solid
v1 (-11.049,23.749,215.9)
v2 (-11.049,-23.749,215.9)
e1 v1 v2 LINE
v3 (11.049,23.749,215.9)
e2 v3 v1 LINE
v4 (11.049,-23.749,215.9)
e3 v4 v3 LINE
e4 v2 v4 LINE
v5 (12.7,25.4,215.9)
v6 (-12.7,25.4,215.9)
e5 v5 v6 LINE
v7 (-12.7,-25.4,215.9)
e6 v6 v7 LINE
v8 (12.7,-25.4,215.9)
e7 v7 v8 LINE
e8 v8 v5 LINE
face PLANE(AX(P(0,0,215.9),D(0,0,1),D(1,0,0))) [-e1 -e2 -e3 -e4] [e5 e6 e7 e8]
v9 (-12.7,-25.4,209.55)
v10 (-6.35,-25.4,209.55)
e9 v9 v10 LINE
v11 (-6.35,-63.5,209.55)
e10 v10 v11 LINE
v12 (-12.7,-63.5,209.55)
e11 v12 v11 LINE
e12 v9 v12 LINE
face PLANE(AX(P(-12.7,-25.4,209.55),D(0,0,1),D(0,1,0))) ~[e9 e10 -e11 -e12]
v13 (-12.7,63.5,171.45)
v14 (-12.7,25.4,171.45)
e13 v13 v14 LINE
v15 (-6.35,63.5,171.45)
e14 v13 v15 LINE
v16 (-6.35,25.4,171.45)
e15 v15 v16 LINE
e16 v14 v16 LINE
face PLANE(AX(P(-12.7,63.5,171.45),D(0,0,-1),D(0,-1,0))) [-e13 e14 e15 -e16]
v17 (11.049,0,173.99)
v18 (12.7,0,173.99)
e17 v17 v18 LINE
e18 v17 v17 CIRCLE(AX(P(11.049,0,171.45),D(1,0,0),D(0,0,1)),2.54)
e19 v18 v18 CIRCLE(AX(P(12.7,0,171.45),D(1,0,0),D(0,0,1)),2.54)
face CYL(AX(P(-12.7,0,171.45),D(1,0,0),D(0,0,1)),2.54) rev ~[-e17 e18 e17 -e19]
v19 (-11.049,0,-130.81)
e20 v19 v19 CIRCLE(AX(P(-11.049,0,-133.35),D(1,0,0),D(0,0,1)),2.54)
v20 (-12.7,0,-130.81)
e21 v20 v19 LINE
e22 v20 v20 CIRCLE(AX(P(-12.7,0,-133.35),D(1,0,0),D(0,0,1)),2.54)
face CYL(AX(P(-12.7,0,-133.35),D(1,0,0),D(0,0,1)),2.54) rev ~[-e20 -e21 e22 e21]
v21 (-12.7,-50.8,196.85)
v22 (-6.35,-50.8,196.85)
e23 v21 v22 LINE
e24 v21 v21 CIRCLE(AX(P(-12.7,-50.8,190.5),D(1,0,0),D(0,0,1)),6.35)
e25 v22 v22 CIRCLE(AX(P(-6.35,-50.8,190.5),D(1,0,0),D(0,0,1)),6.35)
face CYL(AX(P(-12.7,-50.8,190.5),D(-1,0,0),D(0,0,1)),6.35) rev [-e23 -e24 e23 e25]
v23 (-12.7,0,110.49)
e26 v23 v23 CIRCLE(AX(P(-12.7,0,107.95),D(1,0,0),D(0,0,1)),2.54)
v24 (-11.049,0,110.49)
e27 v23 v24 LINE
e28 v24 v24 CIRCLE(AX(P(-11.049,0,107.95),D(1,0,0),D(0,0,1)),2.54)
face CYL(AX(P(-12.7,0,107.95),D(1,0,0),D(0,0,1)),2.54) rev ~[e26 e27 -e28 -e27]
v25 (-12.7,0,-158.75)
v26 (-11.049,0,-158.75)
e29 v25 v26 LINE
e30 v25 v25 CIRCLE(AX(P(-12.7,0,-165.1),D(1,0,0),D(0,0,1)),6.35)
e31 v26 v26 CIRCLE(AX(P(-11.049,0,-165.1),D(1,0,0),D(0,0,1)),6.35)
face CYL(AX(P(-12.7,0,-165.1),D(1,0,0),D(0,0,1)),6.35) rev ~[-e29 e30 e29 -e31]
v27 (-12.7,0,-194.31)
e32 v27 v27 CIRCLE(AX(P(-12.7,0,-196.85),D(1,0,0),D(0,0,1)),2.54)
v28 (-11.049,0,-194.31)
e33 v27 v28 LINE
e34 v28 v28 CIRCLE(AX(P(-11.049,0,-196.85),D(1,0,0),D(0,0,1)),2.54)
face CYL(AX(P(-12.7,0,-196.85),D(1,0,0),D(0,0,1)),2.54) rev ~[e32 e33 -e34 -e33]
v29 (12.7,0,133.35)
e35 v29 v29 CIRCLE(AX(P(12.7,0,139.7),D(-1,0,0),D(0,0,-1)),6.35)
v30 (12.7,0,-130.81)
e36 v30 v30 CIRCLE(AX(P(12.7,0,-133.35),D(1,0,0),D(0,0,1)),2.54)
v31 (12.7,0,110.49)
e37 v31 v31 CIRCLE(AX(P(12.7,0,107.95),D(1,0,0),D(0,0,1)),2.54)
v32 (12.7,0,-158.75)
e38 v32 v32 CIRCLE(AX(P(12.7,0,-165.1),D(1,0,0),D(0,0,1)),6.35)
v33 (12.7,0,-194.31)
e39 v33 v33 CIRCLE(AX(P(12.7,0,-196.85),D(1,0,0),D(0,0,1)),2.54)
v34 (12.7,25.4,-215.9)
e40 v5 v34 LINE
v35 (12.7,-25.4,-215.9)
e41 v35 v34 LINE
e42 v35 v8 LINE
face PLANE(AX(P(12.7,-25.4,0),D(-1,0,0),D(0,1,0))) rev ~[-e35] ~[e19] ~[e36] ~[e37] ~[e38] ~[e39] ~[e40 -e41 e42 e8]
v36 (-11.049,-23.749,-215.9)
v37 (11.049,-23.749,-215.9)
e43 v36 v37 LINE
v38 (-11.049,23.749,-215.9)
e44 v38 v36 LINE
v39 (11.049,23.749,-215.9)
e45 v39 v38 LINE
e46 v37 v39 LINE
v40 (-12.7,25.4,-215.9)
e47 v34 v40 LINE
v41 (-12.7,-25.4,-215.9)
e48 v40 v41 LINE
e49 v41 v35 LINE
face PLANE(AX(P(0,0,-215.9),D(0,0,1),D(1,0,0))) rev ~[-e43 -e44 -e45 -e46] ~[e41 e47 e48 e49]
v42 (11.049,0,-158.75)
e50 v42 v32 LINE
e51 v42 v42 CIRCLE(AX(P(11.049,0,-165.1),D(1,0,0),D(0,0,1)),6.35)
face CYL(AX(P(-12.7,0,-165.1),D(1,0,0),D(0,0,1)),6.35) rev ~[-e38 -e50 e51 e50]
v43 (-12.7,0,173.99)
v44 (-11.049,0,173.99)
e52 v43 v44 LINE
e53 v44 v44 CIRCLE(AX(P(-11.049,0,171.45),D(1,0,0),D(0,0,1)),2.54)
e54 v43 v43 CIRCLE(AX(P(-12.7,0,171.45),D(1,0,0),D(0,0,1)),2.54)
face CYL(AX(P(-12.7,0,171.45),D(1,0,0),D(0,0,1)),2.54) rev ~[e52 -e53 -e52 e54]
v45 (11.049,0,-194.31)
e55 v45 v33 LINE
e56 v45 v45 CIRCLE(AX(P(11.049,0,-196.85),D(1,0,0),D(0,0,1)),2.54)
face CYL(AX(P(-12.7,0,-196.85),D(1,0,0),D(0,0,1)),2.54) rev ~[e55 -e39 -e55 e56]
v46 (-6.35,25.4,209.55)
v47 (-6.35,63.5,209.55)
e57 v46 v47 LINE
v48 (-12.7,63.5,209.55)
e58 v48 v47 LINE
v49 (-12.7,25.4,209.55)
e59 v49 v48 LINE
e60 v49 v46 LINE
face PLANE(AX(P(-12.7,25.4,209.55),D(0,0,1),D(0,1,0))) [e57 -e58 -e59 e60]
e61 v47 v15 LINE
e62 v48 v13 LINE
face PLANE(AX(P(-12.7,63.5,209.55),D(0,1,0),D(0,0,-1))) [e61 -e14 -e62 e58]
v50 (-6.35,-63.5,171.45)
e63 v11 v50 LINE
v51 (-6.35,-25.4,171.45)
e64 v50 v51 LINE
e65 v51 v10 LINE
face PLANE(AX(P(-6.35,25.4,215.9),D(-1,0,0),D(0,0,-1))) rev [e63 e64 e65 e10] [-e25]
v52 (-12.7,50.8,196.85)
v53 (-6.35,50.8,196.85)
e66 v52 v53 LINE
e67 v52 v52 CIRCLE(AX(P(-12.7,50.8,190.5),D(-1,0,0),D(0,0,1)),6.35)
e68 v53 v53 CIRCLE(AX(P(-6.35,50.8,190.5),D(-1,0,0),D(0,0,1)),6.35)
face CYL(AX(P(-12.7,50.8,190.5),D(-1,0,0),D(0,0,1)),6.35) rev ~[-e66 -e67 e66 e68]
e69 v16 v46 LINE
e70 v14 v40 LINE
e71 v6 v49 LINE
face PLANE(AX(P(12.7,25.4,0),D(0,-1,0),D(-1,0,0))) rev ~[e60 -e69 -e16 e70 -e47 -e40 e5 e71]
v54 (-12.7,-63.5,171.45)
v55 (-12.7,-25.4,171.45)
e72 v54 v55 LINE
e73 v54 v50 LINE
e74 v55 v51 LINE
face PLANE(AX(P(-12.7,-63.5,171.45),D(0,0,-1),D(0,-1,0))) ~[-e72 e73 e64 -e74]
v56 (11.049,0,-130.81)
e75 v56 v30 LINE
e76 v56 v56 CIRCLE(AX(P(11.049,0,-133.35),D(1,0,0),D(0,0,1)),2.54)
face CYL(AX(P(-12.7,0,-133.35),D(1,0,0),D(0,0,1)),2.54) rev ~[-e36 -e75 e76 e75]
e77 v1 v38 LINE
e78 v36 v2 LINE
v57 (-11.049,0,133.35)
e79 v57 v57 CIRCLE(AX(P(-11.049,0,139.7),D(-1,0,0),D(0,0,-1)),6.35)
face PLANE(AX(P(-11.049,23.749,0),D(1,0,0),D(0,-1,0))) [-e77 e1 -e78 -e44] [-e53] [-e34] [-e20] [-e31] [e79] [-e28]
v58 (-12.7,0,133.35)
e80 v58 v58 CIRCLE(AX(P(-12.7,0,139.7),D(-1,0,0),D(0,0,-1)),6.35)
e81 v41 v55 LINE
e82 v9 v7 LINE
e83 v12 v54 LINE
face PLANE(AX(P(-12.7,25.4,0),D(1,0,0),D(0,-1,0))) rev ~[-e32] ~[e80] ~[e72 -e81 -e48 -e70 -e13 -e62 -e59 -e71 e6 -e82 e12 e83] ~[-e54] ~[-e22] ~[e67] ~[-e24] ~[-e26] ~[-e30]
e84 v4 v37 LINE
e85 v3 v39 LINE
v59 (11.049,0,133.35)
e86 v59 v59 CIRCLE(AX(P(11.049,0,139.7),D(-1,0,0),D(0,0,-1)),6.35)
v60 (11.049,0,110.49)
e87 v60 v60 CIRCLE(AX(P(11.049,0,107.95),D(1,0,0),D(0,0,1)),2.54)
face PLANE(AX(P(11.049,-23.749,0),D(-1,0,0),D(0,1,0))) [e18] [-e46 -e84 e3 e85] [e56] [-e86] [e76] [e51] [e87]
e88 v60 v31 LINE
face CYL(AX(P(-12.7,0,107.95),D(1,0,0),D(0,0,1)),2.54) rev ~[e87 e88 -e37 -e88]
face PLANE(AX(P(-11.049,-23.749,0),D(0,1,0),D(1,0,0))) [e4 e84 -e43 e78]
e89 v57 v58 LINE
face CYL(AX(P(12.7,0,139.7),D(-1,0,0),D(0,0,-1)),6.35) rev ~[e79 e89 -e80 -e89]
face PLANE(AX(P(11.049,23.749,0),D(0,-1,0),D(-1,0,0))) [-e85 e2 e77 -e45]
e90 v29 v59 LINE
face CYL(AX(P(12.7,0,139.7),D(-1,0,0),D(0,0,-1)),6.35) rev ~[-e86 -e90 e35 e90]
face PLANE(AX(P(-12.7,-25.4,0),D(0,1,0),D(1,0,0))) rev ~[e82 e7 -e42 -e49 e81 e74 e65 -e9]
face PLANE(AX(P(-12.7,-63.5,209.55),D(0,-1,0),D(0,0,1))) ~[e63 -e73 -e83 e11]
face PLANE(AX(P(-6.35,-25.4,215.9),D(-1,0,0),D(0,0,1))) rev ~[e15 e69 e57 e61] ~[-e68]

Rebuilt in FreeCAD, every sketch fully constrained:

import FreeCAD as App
import Part
import Sketcher
from FreeCAD import Vector
Q = App.Units.Quantity


def add_polygon(sketch, points):
    """Adds a closed chain of lines whose ends are joined by coincident constraints."""
    first, n = sketch.GeometryCount, len(points)
    for a, b in zip(points, points[1:] + points[:1]):
        sketch.addGeometry(Part.LineSegment(App.Vector(*a, 0), App.Vector(*b, 0)), False)
    for i in range(n):
        sketch.addConstraint(Sketcher.Constraint("Coincident", first + i, 2, first + (i + 1) % n, 1))

doc = App.newDocument("Part")
body = doc.addObject("PartDesign::Body", "Body")

# Sketch on XY plane
sketch1 = body.newObject("Sketcher::SketchObject", "Sketch")
sketch1.AttachmentSupport = (doc.getObject("XY_Plane"), [""])
sketch1.MapMode = "FlatFace"
add_polygon(sketch1, [(-13, 25), (-13, -25), (13, -25), (13, 25)])  # lines 0-3
add_polygon(sketch1, [(11, -24), (-11, -24), (-11, 24), (11, 24)])  # lines 4-7
sketch1.addConstraint([
    Sketcher.Constraint("Vertical", 0),
    Sketcher.Constraint("Horizontal", 1),
    Sketcher.Constraint("Vertical", 2),
    Sketcher.Constraint("Horizontal", 3),
    Sketcher.Constraint("Horizontal", 4),
    Sketcher.Constraint("Vertical", 5),
    Sketcher.Constraint("Horizontal", 6),
    Sketcher.Constraint("Vertical", 7),
    Sketcher.Constraint("Symmetric", 0, 2, 2, 2, -1, 1),
    Sketcher.Constraint("Symmetric", 4, 2, 6, 2, -1, 1),
    Sketcher.Constraint("DistanceX", 1, 1, 1, 2, Q("1 in")),
    Sketcher.Constraint("DistanceY", 0, 2, 0, 1, Q("2 in")),
    Sketcher.Constraint("DistanceX", 4, 2, 4, 1, Q("0.87 in")),
    Sketcher.Constraint("DistanceY", 5, 1, 5, 2, Q("1.87 in")),
])
pad1 = body.newObject("PartDesign::Pad", "Pad")
pad1.Profile = sketch1
pad1.Length = Q("17 in")
pad1.Midplane = True

# Sketch on YZ plane
sketch2 = body.newObject("Sketcher::SketchObject", "Sketch001")
sketch2.AttachmentSupport = (doc.getObject("YZ_Plane"), [""])
sketch2.MapMode = "FlatFace"
sketch2.AttachmentOffset = App.Placement(Vector(0, 0, 0.5 * 25.4), App.Rotation())
sketch2.addGeometry(Part.Circle(Vector(0, 140, 0), Vector(0, 0, 1), 6), False)
sketch2.addConstraint([
    Sketcher.Constraint("PointOnObject", 0, 3, -2),
    Sketcher.Constraint("Diameter", 0, Q("0.5 in")),
    Sketcher.Constraint("DistanceY", -1, 1, 0, 3, Q("5.5 in")),
])
doc.recompute()
hole = body.newObject("PartDesign::Hole", "Hole")
hole.Profile = sketch2
hole.ThreadType = "None"
hole.Diameter = Q("0.5 in")
hole.DepthType = "ThroughAll"

# Sketch on YZ plane
sketch3 = body.newObject("Sketcher::SketchObject", "Sketch002")
sketch3.AttachmentSupport = (doc.getObject("YZ_Plane"), [""])
sketch3.MapMode = "FlatFace"
sketch3.AttachmentOffset = App.Placement(Vector(0, 0, -0.5 * 25.4), App.Rotation())
sketch3.addGeometry(Part.Circle(Vector(0, -165, 0), Vector(0, 0, 1), 6), False)
sketch3.addConstraint([
    Sketcher.Constraint("PointOnObject", 0, 3, -2),
    Sketcher.Constraint("Diameter", 0, Q("0.5 in")),
    Sketcher.Constraint("DistanceY", 0, 3, -1, 1, Q("6.5 in")),
])
doc.recompute()
hole2 = body.newObject("PartDesign::Hole", "Hole001")
hole2.Profile = sketch3
hole2.ThreadType = "None"
hole2.Diameter = Q("0.5 in")
hole2.DepthType = "ThroughAll"
hole2.Reversed = True

# Sketch on YZ plane
sketch4 = body.newObject("Sketcher::SketchObject", "Sketch003")
sketch4.AttachmentSupport = (doc.getObject("YZ_Plane"), [""])
sketch4.MapMode = "FlatFace"
sketch4.AttachmentOffset = App.Placement(Vector(0, 0, -0.5 * 25.4), App.Rotation())
sketch4.addGeometry([
    Part.Circle(Vector(0, -133.3, 0), Vector(0, 0, 1), 2.5),
    Part.Circle(Vector(0, -196.8, 0), Vector(0, 0, 1), 2.5),
], False)
sketch4.addConstraint([
    Sketcher.Constraint("Equal", 0, 1),
    Sketcher.Constraint("PointOnObject", 0, 3, -2),
    Sketcher.Constraint("PointOnObject", 1, 3, -2),
    Sketcher.Constraint("Diameter", 0, Q("0.2 in")),
    Sketcher.Constraint("DistanceY", 1, 3, 0, 3, Q("2.5 in")),
    Sketcher.Constraint("DistanceY", 0, 3, -1, 1, Q("5.25 in")),
])
doc.recompute()
hole3 = body.newObject("PartDesign::Hole", "Hole002")
hole3.Profile = sketch4
hole3.ThreadType = "None"
hole3.Diameter = Q("0.2 in")
hole3.DepthType = "ThroughAll"
hole3.Reversed = True

# Sketch on YZ plane
sketch5 = body.newObject("Sketcher::SketchObject", "Sketch004")
sketch5.AttachmentSupport = (doc.getObject("YZ_Plane"), [""])
sketch5.MapMode = "FlatFace"
sketch5.AttachmentOffset = App.Placement(Vector(0, 0, -0.5 * 25.4), App.Rotation())
add_polygon(sketch5, [(25, 171), (25, 210), (64, 210), (64, 171)])  # lines 0-3
sketch5.addGeometry(Part.Circle(Vector(51, 190, 0), Vector(0, 0, 1), 6), False)  # 4
sketch5.addConstraint([
    Sketcher.Constraint("Vertical", 0),
    Sketcher.Constraint("Horizontal", 1),
    Sketcher.Constraint("Vertical", 2),
    Sketcher.Constraint("Horizontal", 3),
    Sketcher.Constraint("Equal", 3, 0),
    Sketcher.Constraint("Diameter", 4, Q("0.5 in")),
    Sketcher.Constraint("DistanceX", 1, 1, 1, 2, Q("1.5 in")),
    Sketcher.Constraint("DistanceX", -1, 1, 0, 2, Q("1 in")),
    Sketcher.Constraint("DistanceX", 0, 2, 4, 3, Q("1 in")),
    Sketcher.Constraint("DistanceY", 4, 3, 0, 2, Q("0.75 in")),
    Sketcher.Constraint("DistanceY", -1, 1, 4, 3, Q("7.5 in")),
])
pad2 = body.newObject("PartDesign::Pad", "Pad001")
pad2.Profile = sketch5
pad2.Length = Q("0.25 in")
doc.recompute()

mirrored = body.newObject("PartDesign::Mirrored", "Mirrored")
mirrored.Originals = [pad2]
mirrored.MirrorPlane = (doc.getObject("XZ_Plane"), [""])
body.Tip = mirrored
doc.recompute()

linearpattern = body.newObject("PartDesign::LinearPattern", "LinearPattern")
linearpattern.Originals = [hole3]
linearpattern.Direction = (doc.getObject("Z_Axis"), [""])
linearpattern.Mode = "offset"
linearpattern.Offset = Q("12 in")
linearpattern.Occurrences = 2
body.Tip = linearpattern

doc.recompute()
